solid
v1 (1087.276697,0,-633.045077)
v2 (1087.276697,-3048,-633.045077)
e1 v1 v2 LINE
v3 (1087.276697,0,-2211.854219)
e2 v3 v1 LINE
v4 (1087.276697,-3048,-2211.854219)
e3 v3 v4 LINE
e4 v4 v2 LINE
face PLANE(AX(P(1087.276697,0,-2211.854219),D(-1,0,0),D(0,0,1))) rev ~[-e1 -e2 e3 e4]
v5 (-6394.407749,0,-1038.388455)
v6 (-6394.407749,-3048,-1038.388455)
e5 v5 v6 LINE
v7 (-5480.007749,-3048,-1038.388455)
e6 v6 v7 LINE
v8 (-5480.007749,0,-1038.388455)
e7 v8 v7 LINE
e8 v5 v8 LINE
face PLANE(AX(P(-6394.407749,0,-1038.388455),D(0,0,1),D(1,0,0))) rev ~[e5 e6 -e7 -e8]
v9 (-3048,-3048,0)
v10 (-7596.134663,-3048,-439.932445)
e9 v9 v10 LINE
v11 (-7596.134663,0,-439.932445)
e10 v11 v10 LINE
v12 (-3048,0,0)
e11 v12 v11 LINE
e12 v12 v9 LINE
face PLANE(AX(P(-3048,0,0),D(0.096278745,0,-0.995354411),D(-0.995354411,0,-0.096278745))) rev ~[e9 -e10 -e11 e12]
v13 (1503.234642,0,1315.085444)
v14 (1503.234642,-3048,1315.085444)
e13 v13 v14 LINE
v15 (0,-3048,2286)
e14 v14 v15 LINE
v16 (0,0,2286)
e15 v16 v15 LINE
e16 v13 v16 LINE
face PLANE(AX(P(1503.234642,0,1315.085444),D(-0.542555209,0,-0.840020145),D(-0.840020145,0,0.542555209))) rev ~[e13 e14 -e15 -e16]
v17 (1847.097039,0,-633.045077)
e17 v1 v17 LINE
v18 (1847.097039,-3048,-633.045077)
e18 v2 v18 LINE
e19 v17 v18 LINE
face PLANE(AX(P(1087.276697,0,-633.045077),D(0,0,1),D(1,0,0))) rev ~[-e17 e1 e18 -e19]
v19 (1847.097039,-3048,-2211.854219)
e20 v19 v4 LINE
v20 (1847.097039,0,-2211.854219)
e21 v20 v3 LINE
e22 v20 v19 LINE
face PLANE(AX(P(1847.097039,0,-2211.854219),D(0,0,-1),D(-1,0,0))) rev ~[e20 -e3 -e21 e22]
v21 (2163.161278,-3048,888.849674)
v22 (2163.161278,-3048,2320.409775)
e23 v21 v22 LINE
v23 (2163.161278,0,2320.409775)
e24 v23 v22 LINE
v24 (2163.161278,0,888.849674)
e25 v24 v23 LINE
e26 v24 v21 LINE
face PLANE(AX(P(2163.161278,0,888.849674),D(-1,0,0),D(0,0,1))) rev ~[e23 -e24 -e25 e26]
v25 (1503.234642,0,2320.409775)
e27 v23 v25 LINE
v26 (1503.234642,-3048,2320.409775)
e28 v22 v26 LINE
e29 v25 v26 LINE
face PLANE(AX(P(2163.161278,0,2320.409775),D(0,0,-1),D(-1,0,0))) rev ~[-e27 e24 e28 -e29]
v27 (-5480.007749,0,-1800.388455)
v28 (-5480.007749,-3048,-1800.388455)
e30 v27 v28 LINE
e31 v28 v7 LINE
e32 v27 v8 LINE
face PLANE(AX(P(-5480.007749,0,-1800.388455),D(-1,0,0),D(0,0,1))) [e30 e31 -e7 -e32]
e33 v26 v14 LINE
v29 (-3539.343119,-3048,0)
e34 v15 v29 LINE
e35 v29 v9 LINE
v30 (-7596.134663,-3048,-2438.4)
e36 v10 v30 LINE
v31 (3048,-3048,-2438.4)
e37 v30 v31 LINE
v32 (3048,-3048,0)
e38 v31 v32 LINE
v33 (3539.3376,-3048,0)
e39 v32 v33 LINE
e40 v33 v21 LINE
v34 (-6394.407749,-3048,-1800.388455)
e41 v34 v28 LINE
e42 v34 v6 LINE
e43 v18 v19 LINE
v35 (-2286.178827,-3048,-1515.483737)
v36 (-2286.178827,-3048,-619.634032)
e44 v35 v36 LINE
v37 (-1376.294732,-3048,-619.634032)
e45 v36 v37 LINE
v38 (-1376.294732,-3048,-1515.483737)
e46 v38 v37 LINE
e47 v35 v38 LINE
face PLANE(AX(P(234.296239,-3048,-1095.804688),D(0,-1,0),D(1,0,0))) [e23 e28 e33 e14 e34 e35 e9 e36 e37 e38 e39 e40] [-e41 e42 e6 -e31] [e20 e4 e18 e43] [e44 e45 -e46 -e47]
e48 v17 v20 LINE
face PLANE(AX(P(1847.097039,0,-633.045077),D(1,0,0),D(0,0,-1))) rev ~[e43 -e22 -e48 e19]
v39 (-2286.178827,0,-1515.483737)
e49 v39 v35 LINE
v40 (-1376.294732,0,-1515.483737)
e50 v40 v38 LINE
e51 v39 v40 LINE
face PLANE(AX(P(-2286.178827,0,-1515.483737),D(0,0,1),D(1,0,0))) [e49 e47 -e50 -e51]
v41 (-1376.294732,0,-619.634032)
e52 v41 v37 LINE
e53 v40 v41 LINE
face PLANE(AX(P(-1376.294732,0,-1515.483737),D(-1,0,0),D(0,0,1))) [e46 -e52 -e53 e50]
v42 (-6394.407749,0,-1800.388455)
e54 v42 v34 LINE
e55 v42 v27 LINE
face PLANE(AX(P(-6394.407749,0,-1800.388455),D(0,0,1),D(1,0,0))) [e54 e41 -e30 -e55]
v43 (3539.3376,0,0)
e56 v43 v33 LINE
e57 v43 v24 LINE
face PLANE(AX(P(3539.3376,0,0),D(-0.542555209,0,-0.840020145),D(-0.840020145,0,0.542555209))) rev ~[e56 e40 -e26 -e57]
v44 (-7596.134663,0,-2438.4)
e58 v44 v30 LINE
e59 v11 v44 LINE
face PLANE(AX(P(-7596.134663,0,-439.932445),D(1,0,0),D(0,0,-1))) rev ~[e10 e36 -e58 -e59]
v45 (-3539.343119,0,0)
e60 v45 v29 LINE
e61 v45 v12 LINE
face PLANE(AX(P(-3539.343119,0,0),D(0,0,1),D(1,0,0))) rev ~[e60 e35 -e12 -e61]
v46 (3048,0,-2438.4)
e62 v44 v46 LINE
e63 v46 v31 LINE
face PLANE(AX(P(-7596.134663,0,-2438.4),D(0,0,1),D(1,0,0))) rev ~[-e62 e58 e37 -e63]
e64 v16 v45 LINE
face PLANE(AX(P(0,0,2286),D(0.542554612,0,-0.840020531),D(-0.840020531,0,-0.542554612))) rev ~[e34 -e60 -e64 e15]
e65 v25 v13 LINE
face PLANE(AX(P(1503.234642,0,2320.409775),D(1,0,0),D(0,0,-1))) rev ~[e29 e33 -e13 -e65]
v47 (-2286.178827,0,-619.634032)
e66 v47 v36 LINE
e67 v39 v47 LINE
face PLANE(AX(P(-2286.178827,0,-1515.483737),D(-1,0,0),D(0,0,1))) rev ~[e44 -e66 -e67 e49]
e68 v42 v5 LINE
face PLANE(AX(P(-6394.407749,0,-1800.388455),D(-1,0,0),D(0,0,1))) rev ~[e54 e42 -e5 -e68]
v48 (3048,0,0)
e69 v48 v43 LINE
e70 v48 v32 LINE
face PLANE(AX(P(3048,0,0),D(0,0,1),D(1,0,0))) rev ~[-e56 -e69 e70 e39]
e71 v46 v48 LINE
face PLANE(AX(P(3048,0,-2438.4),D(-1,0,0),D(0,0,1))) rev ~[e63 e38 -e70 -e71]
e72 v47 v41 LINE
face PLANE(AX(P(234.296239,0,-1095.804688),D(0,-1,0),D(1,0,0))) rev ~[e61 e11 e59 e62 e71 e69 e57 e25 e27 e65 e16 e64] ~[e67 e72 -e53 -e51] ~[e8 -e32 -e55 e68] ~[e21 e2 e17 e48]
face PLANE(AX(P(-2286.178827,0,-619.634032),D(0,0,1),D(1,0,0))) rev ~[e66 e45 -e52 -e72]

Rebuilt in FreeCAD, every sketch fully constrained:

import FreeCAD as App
import Part
import Sketcher
Q = App.Units.Quantity

doc = App.newDocument("Part")
body = doc.addObject("PartDesign::Body", "Body")

# Sketch on XZ plane
sketch1 = body.newObject("Sketcher::SketchObject", "Sketch")
sketch1.AttachmentSupport = (doc.getObject("XZ_Plane"), [""])
sketch1.MapMode = "FlatFace"
sketch1.addGeometry([
    Part.LineSegment(App.Vector(3048, -2438, 0), App.Vector(3048, 0, 0)),  # 0
    Part.LineSegment(App.Vector(3048, 0, 0), App.Vector(3539, 0, 0)),  # 1
    Part.LineSegment(App.Vector(3539, 0, 0), App.Vector(2163, 889, 0)),  # 2
    Part.LineSegment(App.Vector(2163, 889, 0), App.Vector(2163, 2320, 0)),  # 3
    Part.LineSegment(App.Vector(2163, 2320, 0), App.Vector(1503, 2320, 0)),  # 4
    Part.LineSegment(App.Vector(1503, 2320, 0), App.Vector(1503, 1315, 0)),  # 5
    Part.LineSegment(App.Vector(1503, 1315, 0), App.Vector(0, 2286, 0)),  # 6
    Part.LineSegment(App.Vector(0, 2286, 0), App.Vector(-3539, 0, 0)),  # 7
    Part.LineSegment(App.Vector(-3539, 0, 0), App.Vector(-3048, 0, 0)),  # 8
    Part.LineSegment(App.Vector(-3048, 0, 0), App.Vector(-7596, -440, 0)),  # 9
    Part.LineSegment(App.Vector(-7596, -440, 0), App.Vector(-7596, -2438, 0)),  # 10
    Part.LineSegment(App.Vector(-7596, -2438, 0), App.Vector(3048, -2438, 0)),  # 11
    Part.LineSegment(App.Vector(1087, -2212, 0), App.Vector(1087, -633, 0)),  # 12
    Part.LineSegment(App.Vector(1087, -633, 0), App.Vector(1847, -633, 0)),  # 13
    Part.LineSegment(App.Vector(1847, -633, 0), App.Vector(1847, -2212, 0)),  # 14
    Part.LineSegment(App.Vector(1847, -2212, 0), App.Vector(1087, -2212, 0)),  # 15
    Part.LineSegment(App.Vector(-5480, -1800, 0), App.Vector(-6394, -1800, 0)),  # 16
    Part.LineSegment(App.Vector(-6394, -1800, 0), App.Vector(-6394, -1038, 0)),  # 17
    Part.LineSegment(App.Vector(-6394, -1038, 0), App.Vector(-5480, -1038, 0)),  # 18
    Part.LineSegment(App.Vector(-5480, -1038, 0), App.Vector(-5480, -1800, 0)),  # 19
    Part.LineSegment(App.Vector(-1376, -1515, 0), App.Vector(-2286, -1515, 0)),  # 20
    Part.LineSegment(App.Vector(-2286, -1515, 0), App.Vector(-2286, -620, 0)),  # 21
    Part.LineSegment(App.Vector(-2286, -620, 0), App.Vector(-1376, -620, 0)),  # 22
    Part.LineSegment(App.Vector(-1376, -620, 0), App.Vector(-1376, -1515, 0)),  # 23
], False)
sketch1.addConstraint([
    Sketcher.Constraint("Coincident", 0, 2, 1, 1),
    Sketcher.Constraint("Coincident", 1, 2, 2, 1),
    Sketcher.Constraint("Coincident", 2, 2, 3, 1),
    Sketcher.Constraint("Coincident", 3, 2, 4, 1),
    Sketcher.Constraint("Coincident", 4, 2, 5, 1),
    Sketcher.Constraint("Coincident", 5, 2, 6, 1),
    Sketcher.Constraint("Coincident", 6, 2, 7, 1),
    Sketcher.Constraint("Coincident", 7, 2, 8, 1),
    Sketcher.Constraint("Coincident", 8, 2, 9, 1),
    Sketcher.Constraint("Coincident", 9, 2, 10, 1),
    Sketcher.Constraint("Coincident", 10, 2, 11, 1),
    Sketcher.Constraint("Coincident", 11, 2, 0, 1),
    Sketcher.Constraint("Coincident", 12, 2, 13, 1),
    Sketcher.Constraint("Coincident", 13, 2, 14, 1),
    Sketcher.Constraint("Coincident", 14, 2, 15, 1),
    Sketcher.Constraint("Coincident", 15, 2, 12, 1),
    Sketcher.Constraint("Coincident", 16, 2, 17, 1),
    Sketcher.Constraint("Coincident", 17, 2, 18, 1),
    Sketcher.Constraint("Coincident", 18, 2, 19, 1),
    Sketcher.Constraint("Coincident", 19, 2, 16, 1),
    Sketcher.Constraint("Coincident", 20, 2, 21, 1),
    Sketcher.Constraint("Coincident", 21, 2, 22, 1),
    Sketcher.Constraint("Coincident", 22, 2, 23, 1),
    Sketcher.Constraint("Coincident", 23, 2, 20, 1),
    Sketcher.Constraint("Vertical", 0),
    Sketcher.Constraint("Horizontal", 1),
    Sketcher.Constraint("Vertical", 3),
    Sketcher.Constraint("Horizontal", 4),
    Sketcher.Constraint("Vertical", 5),
    Sketcher.Constraint("Horizontal", 8),
    Sketcher.Constraint("Vertical", 10),
    Sketcher.Constraint("Horizontal", 11),
    Sketcher.Constraint("Vertical", 12),
    Sketcher.Constraint("Horizontal", 13),
    Sketcher.Constraint("Vertical", 14),
    Sketcher.Constraint("Horizontal", 15),
    Sketcher.Constraint("Horizontal", 16),
    Sketcher.Constraint("Vertical", 17),
    Sketcher.Constraint("Horizontal", 18),
    Sketcher.Constraint("Vertical", 19),
    Sketcher.Constraint("Horizontal", 20),
    Sketcher.Constraint("Vertical", 21),
    Sketcher.Constraint("Horizontal", 22),
    Sketcher.Constraint("Vertical", 23),
    Sketcher.Constraint("Symmetric", 0, 2, 8, 2, -1, 1),
    Sketcher.Constraint("PointOnObject", 0, 2, -1),
    Sketcher.Constraint("PointOnObject", 6, 2, -2),
    Sketcher.Constraint("Parallel", 2, 6),
    Sketcher.Constraint("DistanceX", 16, 2, 16, 1, Q("36 in")),
    Sketcher.Constraint("DistanceY", 0, 1, 0, 2, Q("96 in")),
    Sketcher.Constraint("DistanceY", 17, 1, 17, 2, Q("30 in")),
    Sketcher.Constraint("DistanceX", -1, 1, 0, 2, Q("120 in")),
    Sketcher.Constraint("DistanceY", -1, 1, 6, 2, Q("90 in")),
    Sketcher.Constraint("DistanceX", 1, 1, 1, 2, Q("19.344 in")),
    Sketcher.Constraint("DistanceY", 3, 1, 3, 2, Q("1431.560101 mm")),
    Sketcher.Constraint("DistanceX", 8, 1, 8, 2, Q("491.343119 mm")),
    Sketcher.Constraint("DistanceY", 5, 2, 5, 1, Q("1005.32433 mm")),
    Sketcher.Constraint("Distance", 9, Q("4569.362041 mm")),
    Sketcher.Constraint("DistanceX", 4, 2, 4, 1, Q("659.926635 mm")),
    Sketcher.Constraint("DistanceX", 11, 1, 11, 2, Q("10644.134663 mm")),
    Sketcher.Constraint("DistanceX", 13, 1, 13, 2, Q("759.820342 mm")),
    Sketcher.Constraint("DistanceX", 20, 2, 20, 1, Q("909.884095 mm")),
    Sketcher.Constraint("DistanceY", 12, 1, 12, 2, Q("1578.809142 mm")),
    Sketcher.Constraint("DistanceY", 21, 1, 21, 2, Q("895.849705 mm")),
    Sketcher.Constraint("DistanceX", -1, 1, 13, 2, Q("1847.097039 mm")),
    Sketcher.Constraint("DistanceY", 14, 2, -1, 1, Q("2211.854219 mm")),
    Sketcher.Constraint("DistanceX", 16, 2, -1, 1, Q("6394.407749 mm")),
    Sketcher.Constraint("DistanceX", 7, 2, 5, 2, Q("5042.577761 mm")),
    Sketcher.Constraint("DistanceY", 16, 2, 9, 2, Q("1360.45601 mm")),
    Sketcher.Constraint("DistanceX", 7, 2, 20, 2, Q("1253.164291 mm")),
    Sketcher.Constraint("DistanceY", 19, 2, 20, 2, Q("284.904718 mm")),
])
pad1 = body.newObject("PartDesign::Pad", "Pad")
pad1.Profile = sketch1
pad1.Length = Q("120 in")

doc.recompute()
